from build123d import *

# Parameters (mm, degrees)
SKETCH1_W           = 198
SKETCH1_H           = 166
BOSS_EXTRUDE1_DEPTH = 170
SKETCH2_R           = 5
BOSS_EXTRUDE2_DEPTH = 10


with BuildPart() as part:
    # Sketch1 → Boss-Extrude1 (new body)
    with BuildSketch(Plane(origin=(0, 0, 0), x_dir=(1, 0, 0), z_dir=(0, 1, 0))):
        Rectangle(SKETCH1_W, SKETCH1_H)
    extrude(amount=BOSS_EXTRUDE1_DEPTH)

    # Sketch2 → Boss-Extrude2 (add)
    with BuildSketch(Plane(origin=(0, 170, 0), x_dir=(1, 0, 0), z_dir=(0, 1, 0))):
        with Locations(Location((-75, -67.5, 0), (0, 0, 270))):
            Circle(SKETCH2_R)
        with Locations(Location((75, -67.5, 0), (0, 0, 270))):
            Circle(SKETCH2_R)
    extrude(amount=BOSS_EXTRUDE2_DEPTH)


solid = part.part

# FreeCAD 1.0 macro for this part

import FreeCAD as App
import Part
import Sketcher
Q = App.Units.Quantity


def add_polygon(sketch, points):
    """Adds a closed chain of lines whose ends are joined by coincident constraints."""
    first, n = sketch.GeometryCount, len(points)
    for a, b in zip(points, points[1:] + points[:1]):
        sketch.addGeometry(Part.LineSegment(App.Vector(*a, 0), App.Vector(*b, 0)), False)
    for i in range(n):
        sketch.addConstraint(Sketcher.Constraint("Coincident", first + i, 2, first + (i + 1) % n, 1))

doc = App.newDocument("Part")
body = doc.addObject("PartDesign::Body", "Body")

sketch1 = body.newObject("Sketcher::SketchObject", "Sketch")
sketch1.AttachmentSupport = (doc.getObject("XZ_Plane"), [""])
sketch1.MapMode = "FlatFace"
add_polygon(sketch1, [(-99, -83), (-99, 83), (99, 83), (99, -83)])
sketch1.addConstraint([
    Sketcher.Constraint("Vertical", 0),
    Sketcher.Constraint("Horizontal", 1),
    Sketcher.Constraint("Vertical", 2),
    Sketcher.Constraint("Horizontal", 3),
    Sketcher.Constraint("Symmetric", 0, 2, 2, 2, -1, 1),
    Sketcher.Constraint("DistanceX", 1, 1, 1, 2, Q("198 mm")),
    Sketcher.Constraint("DistanceY", 0, 1, 0, 2, Q("166 mm")),
])
pad1 = body.newObject("PartDesign::Pad", "Pad")
pad1.Profile = sketch1
pad1.Length = 170
pad1.Reversed = True

sketch2 = body.newObject("Sketcher::SketchObject", "Sketch001")
sketch2.AttachmentSupport = (doc.getObject("XZ_Plane"), [""])
sketch2.MapMode = "FlatFace"
sketch2.AttachmentOffset = App.Placement(App.Vector(0, 0, -170), App.Rotation())
sketch2.addGeometry([
    Part.Circle(App.Vector(-75, 67.5, 0), App.Vector(0, 0, 1), 5),
    Part.Circle(App.Vector(75, 67.5, 0), App.Vector(0, 0, 1), 5),
], False)
sketch2.addConstraint([
    Sketcher.Constraint("Equal", 0, 1),
    Sketcher.Constraint("Symmetric", 0, 3, 1, 3, -2),
    Sketcher.Constraint("Diameter", 0, Q("10 mm")),
    Sketcher.Constraint("DistanceX", 0, 3, -1, 1, Q("75 mm")),
    Sketcher.Constraint("DistanceY", -1, 1, 0, 3, Q("67.5 mm")),
])
pad2 = body.newObject("PartDesign::Pad", "Pad001")
pad2.Profile = sketch2
pad2.Length = 10
pad2.Reversed = True

doc.recompute()
